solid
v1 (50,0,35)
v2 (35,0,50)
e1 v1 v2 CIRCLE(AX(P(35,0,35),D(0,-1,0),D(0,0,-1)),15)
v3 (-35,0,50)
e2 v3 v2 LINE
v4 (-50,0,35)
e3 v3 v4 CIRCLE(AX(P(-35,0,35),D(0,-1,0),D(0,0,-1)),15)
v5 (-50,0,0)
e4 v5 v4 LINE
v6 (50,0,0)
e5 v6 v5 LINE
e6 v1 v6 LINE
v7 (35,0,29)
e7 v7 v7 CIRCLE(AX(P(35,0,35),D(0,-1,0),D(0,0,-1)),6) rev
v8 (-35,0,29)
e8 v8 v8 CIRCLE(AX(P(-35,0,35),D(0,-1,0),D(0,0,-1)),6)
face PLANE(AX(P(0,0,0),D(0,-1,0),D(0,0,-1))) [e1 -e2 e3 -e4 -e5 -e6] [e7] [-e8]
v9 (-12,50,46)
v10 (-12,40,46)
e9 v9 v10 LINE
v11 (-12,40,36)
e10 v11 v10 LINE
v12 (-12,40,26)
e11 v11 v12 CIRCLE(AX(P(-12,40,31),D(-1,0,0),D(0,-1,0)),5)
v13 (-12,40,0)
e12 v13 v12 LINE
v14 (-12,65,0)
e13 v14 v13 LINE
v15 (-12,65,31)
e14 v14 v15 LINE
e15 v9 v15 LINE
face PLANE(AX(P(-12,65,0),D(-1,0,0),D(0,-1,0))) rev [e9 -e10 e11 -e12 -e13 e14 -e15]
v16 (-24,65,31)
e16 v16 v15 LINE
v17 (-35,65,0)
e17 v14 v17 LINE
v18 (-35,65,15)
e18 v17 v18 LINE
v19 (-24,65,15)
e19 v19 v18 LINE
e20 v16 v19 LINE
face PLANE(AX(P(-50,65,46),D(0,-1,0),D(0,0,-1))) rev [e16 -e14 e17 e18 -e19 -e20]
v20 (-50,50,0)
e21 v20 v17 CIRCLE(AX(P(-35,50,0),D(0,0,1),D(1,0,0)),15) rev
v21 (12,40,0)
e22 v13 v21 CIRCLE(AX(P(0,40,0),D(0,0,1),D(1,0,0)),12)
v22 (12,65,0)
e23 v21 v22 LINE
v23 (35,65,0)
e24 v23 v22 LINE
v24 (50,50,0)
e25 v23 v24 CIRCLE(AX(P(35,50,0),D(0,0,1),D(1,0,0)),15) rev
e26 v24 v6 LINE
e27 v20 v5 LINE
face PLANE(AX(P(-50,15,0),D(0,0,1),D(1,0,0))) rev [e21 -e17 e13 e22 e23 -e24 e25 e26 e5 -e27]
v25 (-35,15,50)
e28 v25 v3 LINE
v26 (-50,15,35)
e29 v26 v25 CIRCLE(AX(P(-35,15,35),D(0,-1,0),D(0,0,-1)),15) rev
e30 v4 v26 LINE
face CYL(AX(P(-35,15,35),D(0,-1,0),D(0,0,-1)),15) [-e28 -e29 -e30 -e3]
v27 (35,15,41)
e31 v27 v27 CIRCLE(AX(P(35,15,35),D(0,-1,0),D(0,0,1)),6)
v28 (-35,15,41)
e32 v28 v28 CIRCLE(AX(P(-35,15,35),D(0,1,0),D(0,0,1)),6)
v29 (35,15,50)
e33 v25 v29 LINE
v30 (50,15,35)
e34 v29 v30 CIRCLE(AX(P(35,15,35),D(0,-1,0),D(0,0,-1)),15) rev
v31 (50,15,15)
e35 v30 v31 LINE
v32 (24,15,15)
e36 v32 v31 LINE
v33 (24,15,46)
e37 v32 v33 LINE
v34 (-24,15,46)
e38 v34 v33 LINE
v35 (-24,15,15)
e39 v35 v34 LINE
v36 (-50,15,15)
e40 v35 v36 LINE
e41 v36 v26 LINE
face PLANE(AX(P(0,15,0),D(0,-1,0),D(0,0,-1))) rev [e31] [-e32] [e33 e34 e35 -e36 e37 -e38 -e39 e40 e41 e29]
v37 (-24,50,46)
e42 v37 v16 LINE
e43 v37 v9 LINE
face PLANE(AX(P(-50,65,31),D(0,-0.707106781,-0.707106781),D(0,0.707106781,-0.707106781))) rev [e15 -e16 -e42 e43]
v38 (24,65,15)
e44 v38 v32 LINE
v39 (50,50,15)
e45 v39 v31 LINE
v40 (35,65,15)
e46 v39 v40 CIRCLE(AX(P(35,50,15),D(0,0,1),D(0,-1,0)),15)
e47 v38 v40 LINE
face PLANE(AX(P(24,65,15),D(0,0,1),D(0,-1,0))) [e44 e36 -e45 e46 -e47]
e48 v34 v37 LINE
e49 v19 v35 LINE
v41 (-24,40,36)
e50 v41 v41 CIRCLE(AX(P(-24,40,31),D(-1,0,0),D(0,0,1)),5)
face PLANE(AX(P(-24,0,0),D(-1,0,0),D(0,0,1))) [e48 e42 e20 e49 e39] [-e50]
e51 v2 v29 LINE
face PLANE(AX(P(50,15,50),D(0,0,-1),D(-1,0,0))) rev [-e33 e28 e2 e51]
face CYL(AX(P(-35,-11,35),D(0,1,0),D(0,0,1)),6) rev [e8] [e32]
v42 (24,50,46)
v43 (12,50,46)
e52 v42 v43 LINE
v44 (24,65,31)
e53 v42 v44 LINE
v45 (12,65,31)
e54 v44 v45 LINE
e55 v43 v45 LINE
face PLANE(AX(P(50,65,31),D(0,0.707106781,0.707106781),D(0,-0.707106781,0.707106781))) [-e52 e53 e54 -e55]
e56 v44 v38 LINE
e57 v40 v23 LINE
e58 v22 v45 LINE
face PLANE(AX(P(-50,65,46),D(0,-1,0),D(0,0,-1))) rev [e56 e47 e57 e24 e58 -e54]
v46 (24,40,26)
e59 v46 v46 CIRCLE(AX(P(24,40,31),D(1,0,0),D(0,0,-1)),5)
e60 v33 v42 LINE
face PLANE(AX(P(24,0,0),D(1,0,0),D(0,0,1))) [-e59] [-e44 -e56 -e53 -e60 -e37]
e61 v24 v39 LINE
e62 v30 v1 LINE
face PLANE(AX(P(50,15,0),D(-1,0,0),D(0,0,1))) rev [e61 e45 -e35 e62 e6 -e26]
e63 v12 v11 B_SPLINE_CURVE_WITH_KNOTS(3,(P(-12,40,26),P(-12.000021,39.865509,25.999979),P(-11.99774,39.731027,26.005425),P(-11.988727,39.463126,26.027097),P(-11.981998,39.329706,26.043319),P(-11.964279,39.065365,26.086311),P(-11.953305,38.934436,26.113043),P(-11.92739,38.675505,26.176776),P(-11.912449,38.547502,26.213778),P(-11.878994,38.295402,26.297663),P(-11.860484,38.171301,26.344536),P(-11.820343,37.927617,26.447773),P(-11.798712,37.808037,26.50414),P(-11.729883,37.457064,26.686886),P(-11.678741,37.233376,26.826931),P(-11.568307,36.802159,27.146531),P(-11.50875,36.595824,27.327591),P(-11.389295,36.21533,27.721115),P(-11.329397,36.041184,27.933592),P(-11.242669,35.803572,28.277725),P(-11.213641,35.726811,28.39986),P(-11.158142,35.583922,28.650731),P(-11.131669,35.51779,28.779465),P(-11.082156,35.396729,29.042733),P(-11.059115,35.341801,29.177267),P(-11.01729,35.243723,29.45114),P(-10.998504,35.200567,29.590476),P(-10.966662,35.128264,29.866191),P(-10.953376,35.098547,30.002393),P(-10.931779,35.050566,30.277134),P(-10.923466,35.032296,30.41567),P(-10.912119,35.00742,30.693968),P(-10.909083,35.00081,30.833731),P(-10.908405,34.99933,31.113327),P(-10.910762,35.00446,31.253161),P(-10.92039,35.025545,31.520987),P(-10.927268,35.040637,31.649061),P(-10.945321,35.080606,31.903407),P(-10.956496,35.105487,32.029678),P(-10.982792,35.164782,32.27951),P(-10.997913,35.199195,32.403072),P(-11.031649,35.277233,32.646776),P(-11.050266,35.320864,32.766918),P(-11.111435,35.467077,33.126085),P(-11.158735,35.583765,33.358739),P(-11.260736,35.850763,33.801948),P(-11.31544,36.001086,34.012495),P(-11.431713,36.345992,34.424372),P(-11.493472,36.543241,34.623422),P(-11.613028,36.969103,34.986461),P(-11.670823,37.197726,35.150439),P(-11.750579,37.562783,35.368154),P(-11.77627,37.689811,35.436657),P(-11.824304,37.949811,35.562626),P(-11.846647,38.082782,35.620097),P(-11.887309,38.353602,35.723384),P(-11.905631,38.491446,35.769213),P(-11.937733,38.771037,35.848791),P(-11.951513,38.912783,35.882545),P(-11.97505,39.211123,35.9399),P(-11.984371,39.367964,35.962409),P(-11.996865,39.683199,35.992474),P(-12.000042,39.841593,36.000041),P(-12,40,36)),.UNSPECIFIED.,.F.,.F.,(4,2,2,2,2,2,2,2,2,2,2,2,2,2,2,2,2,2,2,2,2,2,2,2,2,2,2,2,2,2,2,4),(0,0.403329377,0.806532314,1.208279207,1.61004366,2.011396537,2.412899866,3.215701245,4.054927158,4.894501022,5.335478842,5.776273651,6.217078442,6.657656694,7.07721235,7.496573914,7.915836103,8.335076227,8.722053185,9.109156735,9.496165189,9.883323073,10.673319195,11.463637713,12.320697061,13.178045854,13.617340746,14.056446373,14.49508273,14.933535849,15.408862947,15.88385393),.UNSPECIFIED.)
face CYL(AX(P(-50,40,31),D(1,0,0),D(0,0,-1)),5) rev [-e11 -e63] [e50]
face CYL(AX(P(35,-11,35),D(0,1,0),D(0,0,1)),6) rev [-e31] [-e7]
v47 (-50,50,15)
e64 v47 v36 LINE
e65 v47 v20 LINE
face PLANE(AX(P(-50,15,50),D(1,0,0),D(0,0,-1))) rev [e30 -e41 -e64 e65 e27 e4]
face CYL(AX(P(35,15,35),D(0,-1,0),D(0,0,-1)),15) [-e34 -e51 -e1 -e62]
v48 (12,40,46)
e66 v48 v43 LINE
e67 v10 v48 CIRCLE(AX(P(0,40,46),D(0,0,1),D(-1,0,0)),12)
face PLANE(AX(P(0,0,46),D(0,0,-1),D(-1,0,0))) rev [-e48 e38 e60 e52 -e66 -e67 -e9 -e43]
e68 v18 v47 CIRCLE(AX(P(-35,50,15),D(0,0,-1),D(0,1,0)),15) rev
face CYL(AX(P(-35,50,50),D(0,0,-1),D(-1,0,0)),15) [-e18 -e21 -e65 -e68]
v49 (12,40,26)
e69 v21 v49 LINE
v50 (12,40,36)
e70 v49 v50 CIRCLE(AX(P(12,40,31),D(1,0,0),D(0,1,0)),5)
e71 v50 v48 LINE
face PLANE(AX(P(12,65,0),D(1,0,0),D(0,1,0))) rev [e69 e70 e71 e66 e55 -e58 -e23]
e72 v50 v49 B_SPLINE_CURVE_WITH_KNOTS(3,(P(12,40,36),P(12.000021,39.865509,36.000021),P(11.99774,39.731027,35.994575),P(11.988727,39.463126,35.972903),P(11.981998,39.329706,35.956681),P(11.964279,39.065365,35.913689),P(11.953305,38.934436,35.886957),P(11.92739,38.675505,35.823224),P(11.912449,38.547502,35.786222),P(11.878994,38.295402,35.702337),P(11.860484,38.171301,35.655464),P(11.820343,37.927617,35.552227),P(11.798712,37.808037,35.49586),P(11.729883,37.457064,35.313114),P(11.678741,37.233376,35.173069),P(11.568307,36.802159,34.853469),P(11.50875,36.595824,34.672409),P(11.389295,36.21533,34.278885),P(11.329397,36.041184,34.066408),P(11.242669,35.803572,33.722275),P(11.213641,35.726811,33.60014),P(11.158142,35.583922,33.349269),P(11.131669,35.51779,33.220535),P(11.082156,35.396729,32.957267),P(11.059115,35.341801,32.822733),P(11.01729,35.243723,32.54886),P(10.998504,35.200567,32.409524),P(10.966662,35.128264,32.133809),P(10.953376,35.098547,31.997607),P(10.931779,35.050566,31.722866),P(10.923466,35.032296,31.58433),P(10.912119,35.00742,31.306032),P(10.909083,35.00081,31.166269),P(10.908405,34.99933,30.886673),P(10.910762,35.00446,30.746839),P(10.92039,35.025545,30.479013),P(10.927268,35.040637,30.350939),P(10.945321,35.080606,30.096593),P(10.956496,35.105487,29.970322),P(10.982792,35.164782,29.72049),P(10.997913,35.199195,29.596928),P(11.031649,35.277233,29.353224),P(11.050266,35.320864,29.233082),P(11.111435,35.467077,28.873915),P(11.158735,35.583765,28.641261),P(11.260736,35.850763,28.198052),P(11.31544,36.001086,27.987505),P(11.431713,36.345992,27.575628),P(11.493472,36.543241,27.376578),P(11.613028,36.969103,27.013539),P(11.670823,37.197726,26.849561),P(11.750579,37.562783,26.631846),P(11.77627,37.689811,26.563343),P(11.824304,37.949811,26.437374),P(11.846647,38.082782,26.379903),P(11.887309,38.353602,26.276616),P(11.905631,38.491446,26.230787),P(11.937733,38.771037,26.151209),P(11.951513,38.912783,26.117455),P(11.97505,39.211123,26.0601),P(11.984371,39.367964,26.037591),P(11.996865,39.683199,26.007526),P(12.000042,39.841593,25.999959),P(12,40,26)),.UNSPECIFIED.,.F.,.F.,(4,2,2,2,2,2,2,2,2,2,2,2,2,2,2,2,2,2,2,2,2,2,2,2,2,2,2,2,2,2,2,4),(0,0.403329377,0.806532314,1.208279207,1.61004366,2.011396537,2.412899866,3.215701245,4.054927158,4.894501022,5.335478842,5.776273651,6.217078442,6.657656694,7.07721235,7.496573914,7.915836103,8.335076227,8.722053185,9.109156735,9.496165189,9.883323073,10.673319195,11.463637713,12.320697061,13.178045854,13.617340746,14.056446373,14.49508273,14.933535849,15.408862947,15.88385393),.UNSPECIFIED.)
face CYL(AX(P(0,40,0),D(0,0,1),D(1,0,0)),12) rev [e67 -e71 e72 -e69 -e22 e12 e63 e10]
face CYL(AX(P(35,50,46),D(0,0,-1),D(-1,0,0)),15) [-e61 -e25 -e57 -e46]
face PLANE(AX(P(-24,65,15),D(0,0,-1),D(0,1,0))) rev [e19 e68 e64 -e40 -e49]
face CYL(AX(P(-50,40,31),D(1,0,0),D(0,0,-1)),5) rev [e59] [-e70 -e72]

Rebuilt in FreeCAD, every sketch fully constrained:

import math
import FreeCAD as App
import Part
import Sketcher
from FreeCAD import Vector
Q = App.Units.Quantity


def edges_at(feature, points):
    """Names of the edges that pass closest to the given points."""
    edges = feature.Shape.Edges
    near = lambda p: min(range(len(edges)), key=lambda i: edges[i].distToShape(Part.Vertex(*p))[0])
    return sorted({f"Edge{near(p) + 1}" for p in points})

doc = App.newDocument("Part")
body = doc.addObject("PartDesign::Body", "Body")

# Sketch on XZ plane
sketch1 = body.newObject("Sketcher::SketchObject", "Sketch")
sketch1.AttachmentSupport = (doc.getObject("XZ_Plane"), [""])
sketch1.MapMode = "FlatFace"
sketch1.addGeometry([
    Part.LineSegment(Vector(-50, 0, 0), Vector(-50, 50, 0)),
    Part.LineSegment(Vector(-50, 50, 0), Vector(50, 50, 0)),
    Part.LineSegment(Vector(50, 50, 0), Vector(50, 0, 0)),
    Part.LineSegment(Vector(50, 0, 0), Vector(-50, 0, 0)),
], False)
sketch1.addConstraint([
    Sketcher.Constraint("Coincident", 0, 2, 1, 1),
    Sketcher.Constraint("Coincident", 1, 2, 2, 1),
    Sketcher.Constraint("Coincident", 2, 2, 3, 1),
    Sketcher.Constraint("Coincident", 3, 2, 0, 1),
    Sketcher.Constraint("Vertical", 0),
    Sketcher.Constraint("Horizontal", 1),
    Sketcher.Constraint("Vertical", 2),
    Sketcher.Constraint("Horizontal", 3),
    Sketcher.Constraint("Symmetric", 2, 2, 3, 2, -1, 1),
    Sketcher.Constraint("DistanceX", 1, 1, 1, 2, Q("100 mm")),
    Sketcher.Constraint("DistanceY", 0, 1, 0, 2, Q("50 mm")),
])
pad1 = body.newObject("PartDesign::Pad", "Pad")
pad1.Profile = sketch1
pad1.Length = 15
pad1.Reversed = True

# Sketch on XY plane
sketch2 = body.newObject("Sketcher::SketchObject", "Sketch001")
sketch2.AttachmentSupport = (doc.getObject("XY_Plane"), [""])
sketch2.MapMode = "FlatFace"
sketch2.addGeometry([
    Part.LineSegment(Vector(-50, 65, 0), Vector(-50, 0, 0)),
    Part.LineSegment(Vector(-50, 0, 0), Vector(50, 0, 0)),
    Part.LineSegment(Vector(50, 0, 0), Vector(50, 65, 0)),
    Part.LineSegment(Vector(50, 65, 0), Vector(-50, 65, 0)),
], False)
sketch2.addConstraint([
    Sketcher.Constraint("Coincident", 0, 2, 1, 1),
    Sketcher.Constraint("Coincident", 1, 2, 2, 1),
    Sketcher.Constraint("Coincident", 2, 2, 3, 1),
    Sketcher.Constraint("Coincident", 3, 2, 0, 1),
    Sketcher.Constraint("Vertical", 0),
    Sketcher.Constraint("Horizontal", 1),
    Sketcher.Constraint("Vertical", 2),
    Sketcher.Constraint("Horizontal", 3),
    Sketcher.Constraint("Symmetric", 0, 2, 1, 2, -1, 1),
    Sketcher.Constraint("DistanceX", 1, 1, 1, 2, Q("100 mm")),
    Sketcher.Constraint("DistanceY", 0, 2, 0, 1, Q("65 mm")),
])
pad2 = body.newObject("PartDesign::Pad", "Pad001")
pad2.Profile = sketch2
pad2.Length = 46

# Sketch on XY plane
sketch3 = body.newObject("Sketcher::SketchObject", "Sketch002")
sketch3.AttachmentSupport = (doc.getObject("XY_Plane"), [""])
sketch3.MapMode = "FlatFace"
sketch3.AttachmentOffset = App.Placement(Vector(0, 0, 46), App.Rotation())
sketch3.addGeometry([
    Part.LineSegment(Vector(-12, 65, 0), Vector(-12, 40, 0)),  # 0
    Part.ArcOfCircle(Part.Circle(Vector(0, 40, 0), Vector(0, 0, 1), 12), math.radians(-180), math.radians(-90)),  # 1
    Part.ArcOfCircle(Part.Circle(Vector(0, 40, 0), Vector(0, 0, 1), 12), math.radians(-90), math.radians(0)),  # 2
    Part.LineSegment(Vector(12, 40, 0), Vector(12, 65, 0)),  # 3
    Part.LineSegment(Vector(12, 65, 0), Vector(-12, 65, 0)),  # 4
], False)
sketch3.addConstraint([
    Sketcher.Constraint("Tangent", 0, 2, 1, 1),
    Sketcher.Constraint("Tangent", 1, 2, 2, 1),
    Sketcher.Constraint("Tangent", 2, 2, 3, 1),
    Sketcher.Constraint("Coincident", 3, 2, 4, 1),
    Sketcher.Constraint("Coincident", 4, 2, 0, 1),
    Sketcher.Constraint("Vertical", 0),
    Sketcher.Constraint("Vertical", 3),
    Sketcher.Constraint("Horizontal", 4),
    Sketcher.Constraint("Equal", 1, 2),
    Sketcher.Constraint("PointOnObject", 1, 3, -2),
    Sketcher.Constraint("PointOnObject", 1, 2, -2),
    Sketcher.Constraint("Radius", 1, Q("12 mm")),
    Sketcher.Constraint("DistanceY", 0, 2, 0, 1, Q("25 mm")),
    Sketcher.Constraint("DistanceY", -1, 1, 1, 3, Q("40 mm")),
])
pocket1 = body.newObject("PartDesign::Pocket", "Pocket")
pocket1.Profile = sketch3
pocket1.Type = "ThroughAll"

# Sketch on YZ plane
sketch4 = body.newObject("Sketcher::SketchObject", "Sketch003")
sketch4.AttachmentSupport = (doc.getObject("YZ_Plane"), [""])
sketch4.MapMode = "FlatFace"
sketch4.AttachmentOffset = App.Placement(Vector(0, 0, -12), App.Rotation())
sketch4.addGeometry([
    Part.LineSegment(Vector(50, 46, 0), Vector(65, 31, 0)),
    Part.LineSegment(Vector(65, 31, 0), Vector(65, 46, 0)),
    Part.LineSegment(Vector(65, 46, 0), Vector(50, 46, 0)),
], False)
sketch4.addConstraint([
    Sketcher.Constraint("Coincident", 0, 2, 1, 1),
    Sketcher.Constraint("Coincident", 1, 2, 2, 1),
    Sketcher.Constraint("Coincident", 2, 2, 0, 1),
    Sketcher.Constraint("Vertical", 1),
    Sketcher.Constraint("Horizontal", 2),
    Sketcher.Constraint("Equal", 2, 1),
    Sketcher.Constraint("DistanceX", 2, 2, 2, 1, Q("15 mm")),
    Sketcher.Constraint("DistanceX", -1, 1, 0, 2, Q("65 mm")),
    Sketcher.Constraint("DistanceY", -1, 1, 0, 2, Q("31 mm")),
])
pocket2 = body.newObject("PartDesign::Pocket", "Pocket001")
pocket2.Profile = sketch4
pocket2.Type = "ThroughAll"
doc.recompute()

mirrored = body.newObject("PartDesign::Mirrored", "Mirrored")
mirrored.Originals = [pocket2]
mirrored.MirrorPlane = (doc.getObject("YZ_Plane"), [""])
body.Tip = mirrored

# Sketch on YZ plane
sketch5 = body.newObject("Sketcher::SketchObject", "Sketch004")
sketch5.AttachmentSupport = (doc.getObject("YZ_Plane"), [""])
sketch5.MapMode = "FlatFace"
sketch5.AttachmentOffset = App.Placement(Vector(0, 0, -50), App.Rotation())
sketch5.addGeometry([
    Part.LineSegment(Vector(65, 15, 0), Vector(15, 15, 0)),  # 0
    Part.LineSegment(Vector(15, 15, 0), Vector(15, 46, 0)),  # 1
    Part.LineSegment(Vector(15, 46, 0), Vector(50, 46, 0)),  # 2
    Part.LineSegment(Vector(50, 46, 0), Vector(65, 31, 0)),  # 3
    Part.LineSegment(Vector(65, 31, 0), Vector(65, 15, 0)),  # 4
], False)
sketch5.addConstraint([
    Sketcher.Constraint("Coincident", 0, 2, 1, 1),
    Sketcher.Constraint("Coincident", 1, 2, 2, 1),
    Sketcher.Constraint("Coincident", 2, 2, 3, 1),
    Sketcher.Constraint("Coincident", 3, 2, 4, 1),
    Sketcher.Constraint("Coincident", 4, 2, 0, 1),
    Sketcher.Constraint("Horizontal", 0),
    Sketcher.Constraint("Vertical", 1),
    Sketcher.Constraint("Horizontal", 2),
    Sketcher.Constraint("Vertical", 4),
    Sketcher.Constraint("DistanceX", 0, 2, 0, 1, Q("50 mm")),
    Sketcher.Constraint("DistanceX", 2, 1, 2, 2, Q("35 mm")),
    Sketcher.Constraint("DistanceY", 1, 1, 1, 2, Q("31 mm")),
    Sketcher.Constraint("DistanceY", 4, 2, 4, 1, Q("16 mm")),
    Sketcher.Constraint("DistanceX", -1, 1, 0, 2, Q("15 mm")),
    Sketcher.Constraint("DistanceY", -1, 1, 0, 2, Q("15 mm")),
])
pocket3 = body.newObject("PartDesign::Pocket", "Pocket002")
pocket3.Profile = sketch5
pocket3.Length = 26
pocket3.Reversed = True
doc.recompute()

mirrored2 = body.newObject("PartDesign::Mirrored", "Mirrored001")
mirrored2.Originals = [pocket3]
mirrored2.MirrorPlane = (doc.getObject("YZ_Plane"), [""])
body.Tip = mirrored2
doc.recompute()

fillet = body.newObject("PartDesign::Fillet", "Fillet")
fillet.Base = (mirrored2, edges_at(mirrored2, [
    (-50, 65, 7.5),
    (50, 7.5, 50),
    (-50, 7.5, 50),
    (50, 65, 7.5),
]))
fillet.Radius = 15

# Sketch on YZ plane
sketch6 = body.newObject("Sketcher::SketchObject", "Sketch005")
sketch6.AttachmentSupport = (doc.getObject("YZ_Plane"), [""])
sketch6.MapMode = "FlatFace"
sketch6.AttachmentOffset = App.Placement(Vector(0, 0, 24), App.Rotation())
sketch6.addGeometry(Part.Circle(Vector(40, 31, 0), Vector(0, 0, 1), 5), False)
sketch6.addConstraint([
    Sketcher.Constraint("Diameter", 0, Q("10 mm")),
    Sketcher.Constraint("DistanceX", -1, 1, 0, 3, Q("40 mm")),
    Sketcher.Constraint("DistanceY", -1, 1, 0, 3, Q("31 mm")),
])
pocket4 = body.newObject("PartDesign::Pocket", "Pocket003")
pocket4.Profile = sketch6
pocket4.Type = "ThroughAll"

# Sketch on XZ plane
sketch7 = body.newObject("Sketcher::SketchObject", "Sketch006")
sketch7.AttachmentSupport = (doc.getObject("XZ_Plane"), [""])
sketch7.MapMode = "FlatFace"
sketch7.AttachmentOffset = App.Placement(Vector(0, 0, -15), App.Rotation())
sketch7.addGeometry(Part.Circle(Vector(-35, 35, 0), Vector(0, 0, 1), 6), False)
sketch7.addConstraint([
    Sketcher.Constraint("Diameter", 0, Q("12 mm")),
    Sketcher.Constraint("DistanceX", 0, 3, -1, 1, Q("35 mm")),
    Sketcher.Constraint("DistanceY", -1, 1, 0, 3, Q("35 mm")),
])
pocket5 = body.newObject("PartDesign::Pocket", "Pocket004")
pocket5.Profile = sketch7
pocket5.Length = 26
pocket5.Reversed = True
doc.recompute()

mirrored3 = body.newObject("PartDesign::Mirrored", "Mirrored002")
mirrored3.Originals = [pocket5]
mirrored3.MirrorPlane = (doc.getObject("YZ_Plane"), [""])
body.Tip = mirrored3

doc.recompute()
